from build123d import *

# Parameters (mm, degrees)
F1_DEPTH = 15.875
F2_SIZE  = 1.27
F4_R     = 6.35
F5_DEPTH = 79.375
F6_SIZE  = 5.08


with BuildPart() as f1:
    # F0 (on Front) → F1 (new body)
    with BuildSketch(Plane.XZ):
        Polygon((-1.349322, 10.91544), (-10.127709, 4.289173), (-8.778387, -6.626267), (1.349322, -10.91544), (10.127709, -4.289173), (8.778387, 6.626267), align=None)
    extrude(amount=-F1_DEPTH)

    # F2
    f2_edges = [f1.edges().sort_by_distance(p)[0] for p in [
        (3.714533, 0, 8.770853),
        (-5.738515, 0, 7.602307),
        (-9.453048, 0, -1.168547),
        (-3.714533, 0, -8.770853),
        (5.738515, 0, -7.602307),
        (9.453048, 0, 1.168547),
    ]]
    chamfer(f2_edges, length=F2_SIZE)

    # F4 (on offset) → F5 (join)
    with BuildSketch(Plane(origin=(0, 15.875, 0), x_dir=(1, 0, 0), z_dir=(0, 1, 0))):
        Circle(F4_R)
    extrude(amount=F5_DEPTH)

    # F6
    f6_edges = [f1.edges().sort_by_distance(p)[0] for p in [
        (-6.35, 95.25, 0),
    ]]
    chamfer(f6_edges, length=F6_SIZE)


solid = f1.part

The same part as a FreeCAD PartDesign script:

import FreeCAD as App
import Part
import Sketcher

V = App.Vector
Q = App.Units.Quantity


def edges_at(feature, points):
    """Names of the edges that pass closest to the given points."""
    edges = feature.Shape.Edges
    near = lambda p: min(range(len(edges)), key=lambda i: edges[i].distToShape(Part.Vertex(*p))[0])
    return sorted({f"Edge{near(p) + 1}" for p in points})

doc = App.newDocument("Part")
body = doc.addObject("PartDesign::Body", "Body")

# Sketch on XZ plane
sketch1 = doc.addObject("Sketcher::SketchObject", "Sketch")
body.addObject(sketch1)
sketch1.AttachmentSupport = (doc.XZ_Plane, [""])
sketch1.MapMode = "FlatFace"
sketch1.addGeometry([
    Part.LineSegment(V(-1, 11, 0), V(-10, 4, 0)),  # 0
    Part.LineSegment(V(-10, 4, 0), V(-9, -7, 0)),  # 1
    Part.LineSegment(V(-9, -7, 0), V(1, -11, 0)),  # 2
    Part.LineSegment(V(1, -11, 0), V(10, -4, 0)),  # 3
    Part.LineSegment(V(10, -4, 0), V(9, 7, 0)),  # 4
    Part.LineSegment(V(9, 7, 0), V(-1, 11, 0)),  # 5
], False)
sketch1.addConstraint([
    Sketcher.Constraint("Coincident", 0, 2, 1, 1),
    Sketcher.Constraint("Coincident", 1, 2, 2, 1),
    Sketcher.Constraint("Coincident", 2, 2, 3, 1),
    Sketcher.Constraint("Coincident", 3, 2, 4, 1),
    Sketcher.Constraint("Coincident", 4, 2, 5, 1),
    Sketcher.Constraint("Coincident", 5, 2, 0, 1),
    Sketcher.Constraint("Symmetric", 0, 2, 3, 2, -1, 1),
    Sketcher.Constraint("Symmetric", 1, 2, 4, 2, -1, 1),
    Sketcher.Constraint("Symmetric", 2, 2, 5, 2, -1, 1),
    Sketcher.Constraint("Equal", 0, 1),
    Sketcher.Constraint("Equal", 1, 2),
    Sketcher.Constraint("DistanceX", 0, 2, -1, 1, 10.127709),
    Sketcher.Constraint("DistanceX", -1, 1, 2, 2, 1.349322),
    Sketcher.Constraint("DistanceY", 2, 2, -1, 1, 10.91544),
    Sketcher.Constraint("DistanceX", 0, 2, 1, 2, 1.349322),
])
pad1 = doc.addObject("PartDesign::Pad", "Pad")
body.addObject(pad1)
pad1.Profile = sketch1
pad1.Length = Q("0.625 in")
pad1.Reversed = True
doc.recompute()

chamfer = doc.addObject("PartDesign::Chamfer", "Chamfer")
body.addObject(chamfer)
chamfer.Base = (pad1, edges_at(pad1, [
    (3.715, 0, 8.771),
    (-5.739, 0, 7.602),
    (-9.453, 0, -1.169),
    (-3.715, 0, -8.771),
    (5.739, 0, -7.602),
    (9.453, 0, 1.169),
]))
chamfer.Size = Q("0.05 in")

# Sketch on XZ plane
sketch2 = doc.addObject("Sketcher::SketchObject", "Sketch001")
body.addObject(sketch2)
sketch2.AttachmentSupport = (doc.XZ_Plane, [""])
sketch2.MapMode = "FlatFace"
sketch2.AttachmentOffset = App.Placement(V(0, 0, -0.625 * 25.4), App.Rotation())
sketch2.addGeometry(Part.Circle(V(0, 0, 0), V(0, 0, 1), 6), False)
sketch2.addConstraint([
    Sketcher.Constraint("Coincident", 0, 3, -1, 1),
    Sketcher.Constraint("Diameter", 0, Q("0.5 in")),
])
pad2 = doc.addObject("PartDesign::Pad", "Pad001")
body.addObject(pad2)
pad2.Profile = sketch2
pad2.Length = Q("3.125 in")
pad2.Reversed = True
doc.recompute()

chamfer2 = doc.addObject("PartDesign::Chamfer", "Chamfer001")
body.addObject(chamfer2)
chamfer2.Base = (pad2, edges_at(pad2, [(-6.35, 95.25, 0)]))
chamfer2.Size = Q("0.2 in")

doc.recompute()
